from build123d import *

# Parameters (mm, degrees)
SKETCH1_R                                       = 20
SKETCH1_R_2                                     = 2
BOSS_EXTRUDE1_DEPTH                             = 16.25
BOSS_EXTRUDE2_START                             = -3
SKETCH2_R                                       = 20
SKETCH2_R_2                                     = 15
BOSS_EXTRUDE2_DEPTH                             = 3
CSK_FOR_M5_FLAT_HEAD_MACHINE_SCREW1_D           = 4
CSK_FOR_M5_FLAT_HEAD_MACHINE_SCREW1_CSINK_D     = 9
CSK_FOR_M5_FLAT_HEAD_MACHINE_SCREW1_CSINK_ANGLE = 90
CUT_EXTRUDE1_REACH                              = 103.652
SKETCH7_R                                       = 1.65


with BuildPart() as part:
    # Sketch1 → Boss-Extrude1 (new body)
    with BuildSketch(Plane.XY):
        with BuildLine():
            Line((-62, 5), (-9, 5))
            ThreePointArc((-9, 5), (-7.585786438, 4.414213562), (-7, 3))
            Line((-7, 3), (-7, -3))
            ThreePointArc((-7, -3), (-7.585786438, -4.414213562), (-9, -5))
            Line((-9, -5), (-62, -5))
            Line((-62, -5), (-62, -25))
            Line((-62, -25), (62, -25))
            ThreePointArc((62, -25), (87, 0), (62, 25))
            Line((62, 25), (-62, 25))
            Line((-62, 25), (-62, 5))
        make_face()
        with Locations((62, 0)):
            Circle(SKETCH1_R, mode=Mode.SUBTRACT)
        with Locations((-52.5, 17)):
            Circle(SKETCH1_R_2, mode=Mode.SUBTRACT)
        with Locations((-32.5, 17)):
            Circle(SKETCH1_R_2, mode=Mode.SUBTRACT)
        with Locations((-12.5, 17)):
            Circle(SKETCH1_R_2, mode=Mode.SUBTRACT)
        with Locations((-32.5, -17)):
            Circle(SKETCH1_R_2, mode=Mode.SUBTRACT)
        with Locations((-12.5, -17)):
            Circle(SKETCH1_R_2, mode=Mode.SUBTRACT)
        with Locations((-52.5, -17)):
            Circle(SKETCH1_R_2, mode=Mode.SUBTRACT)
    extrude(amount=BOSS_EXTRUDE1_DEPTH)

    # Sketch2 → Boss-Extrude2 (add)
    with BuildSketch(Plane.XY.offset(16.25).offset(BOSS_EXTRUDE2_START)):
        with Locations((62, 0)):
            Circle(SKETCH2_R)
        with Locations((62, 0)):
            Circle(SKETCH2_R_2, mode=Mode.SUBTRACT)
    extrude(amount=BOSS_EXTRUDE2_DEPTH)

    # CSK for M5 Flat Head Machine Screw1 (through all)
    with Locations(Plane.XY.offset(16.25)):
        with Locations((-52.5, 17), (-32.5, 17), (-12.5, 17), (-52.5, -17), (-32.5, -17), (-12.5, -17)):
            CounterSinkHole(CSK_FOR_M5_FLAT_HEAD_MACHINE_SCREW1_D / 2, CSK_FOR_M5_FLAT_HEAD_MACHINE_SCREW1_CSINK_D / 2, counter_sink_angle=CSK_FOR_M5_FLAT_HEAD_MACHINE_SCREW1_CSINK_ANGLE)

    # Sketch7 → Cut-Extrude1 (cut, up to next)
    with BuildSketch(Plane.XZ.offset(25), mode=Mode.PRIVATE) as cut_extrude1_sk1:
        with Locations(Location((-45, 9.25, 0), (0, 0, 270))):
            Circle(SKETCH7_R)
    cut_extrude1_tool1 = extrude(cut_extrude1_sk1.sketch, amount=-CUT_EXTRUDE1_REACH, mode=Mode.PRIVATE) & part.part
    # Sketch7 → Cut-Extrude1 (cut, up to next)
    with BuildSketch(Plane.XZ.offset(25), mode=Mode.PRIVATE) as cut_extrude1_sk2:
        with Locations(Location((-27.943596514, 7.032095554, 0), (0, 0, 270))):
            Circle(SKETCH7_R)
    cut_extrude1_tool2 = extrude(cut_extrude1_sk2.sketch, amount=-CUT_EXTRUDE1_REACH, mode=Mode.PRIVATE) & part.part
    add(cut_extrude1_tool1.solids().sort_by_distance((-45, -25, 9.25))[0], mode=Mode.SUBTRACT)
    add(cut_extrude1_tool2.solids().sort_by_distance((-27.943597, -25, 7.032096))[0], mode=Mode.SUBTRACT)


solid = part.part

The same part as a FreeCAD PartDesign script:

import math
import FreeCAD as App
import Part
import Sketcher
Q = App.Units.Quantity

doc = App.newDocument("Part")
body = doc.addObject("PartDesign::Body", "Body")

# Sketch on XY plane
sketch1 = doc.addObject("Sketcher::SketchObject", "Sketch")
body.addObject(sketch1)
sketch1.AttachmentSupport = (doc.XY_Plane, [""])
sketch1.MapMode = "FlatFace"
sketch1.addGeometry(Part.LineSegment(App.Vector(-62, 5, 0), App.Vector(-9, 5, 0)), False)
sketch1.addGeometry(Part.ArcOfCircle(Part.Circle(App.Vector(-9, 3, 0), App.Vector(0, 0, 1), 2), math.radians(0), math.radians(90)), False)
sketch1.addGeometry(Part.LineSegment(App.Vector(-7, 3, 0), App.Vector(-7, -3, 0)), False)
sketch1.addGeometry(Part.ArcOfCircle(Part.Circle(App.Vector(-9, -3, 0), App.Vector(0, 0, 1), 2), math.radians(-90), math.radians(0)), False)
sketch1.addGeometry(Part.LineSegment(App.Vector(-9, -5, 0), App.Vector(-62, -5, 0)), False)
sketch1.addGeometry(Part.LineSegment(App.Vector(-62, -5, 0), App.Vector(-62, -25, 0)), False)
sketch1.addGeometry(Part.LineSegment(App.Vector(-62, -25, 0), App.Vector(62, -25, 0)), False)
sketch1.addGeometry(Part.ArcOfCircle(Part.Circle(App.Vector(62, 0, 0), App.Vector(0, 0, 1), 25), math.radians(-90), math.radians(90)), False)
sketch1.addGeometry(Part.LineSegment(App.Vector(62, 25, 0), App.Vector(-62, 25, 0)), False)
sketch1.addGeometry(Part.LineSegment(App.Vector(-62, 25, 0), App.Vector(-62, 5, 0)), False)
sketch1.addGeometry(Part.Circle(App.Vector(-52.5, -17, 0), App.Vector(0, 0, 1), 2), False)
sketch1.addGeometry(Part.Circle(App.Vector(-32.5, -17, 0), App.Vector(0, 0, 1), 2), False)
sketch1.addGeometry(Part.Circle(App.Vector(-12.5, -17, 0), App.Vector(0, 0, 1), 2), False)
sketch1.addGeometry(Part.Circle(App.Vector(-52.5, 17, 0), App.Vector(0, 0, 1), 2), False)
sketch1.addGeometry(Part.Circle(App.Vector(-32.5, 17, 0), App.Vector(0, 0, 1), 2), False)
sketch1.addGeometry(Part.Circle(App.Vector(-12.5, 17, 0), App.Vector(0, 0, 1), 2), False)
sketch1.addGeometry(Part.Circle(App.Vector(62, 0, 0), App.Vector(0, 0, 1), 20), False)
sketch1.addConstraint(Sketcher.Constraint("Tangent", 0, 2, 1, 2))
sketch1.addConstraint(Sketcher.Constraint("Tangent", 1, 1, 2, 1))
sketch1.addConstraint(Sketcher.Constraint("Tangent", 2, 2, 3, 2))
sketch1.addConstraint(Sketcher.Constraint("Tangent", 3, 1, 4, 1))
sketch1.addConstraint(Sketcher.Constraint("Coincident", 4, 2, 5, 1))
sketch1.addConstraint(Sketcher.Constraint("Coincident", 5, 2, 6, 1))
sketch1.addConstraint(Sketcher.Constraint("Tangent", 6, 2, 7, 1))
sketch1.addConstraint(Sketcher.Constraint("Tangent", 7, 2, 8, 1))
sketch1.addConstraint(Sketcher.Constraint("Coincident", 8, 2, 9, 1))
sketch1.addConstraint(Sketcher.Constraint("Coincident", 9, 2, 0, 1))
sketch1.addConstraint(Sketcher.Constraint("Horizontal", 0))
sketch1.addConstraint(Sketcher.Constraint("Vertical", 2))
sketch1.addConstraint(Sketcher.Constraint("Horizontal", 4))
sketch1.addConstraint(Sketcher.Constraint("Vertical", 5))
sketch1.addConstraint(Sketcher.Constraint("Horizontal", 6))
sketch1.addConstraint(Sketcher.Constraint("Horizontal", 8))
sketch1.addConstraint(Sketcher.Constraint("Vertical", 9))
sketch1.addConstraint(Sketcher.Constraint("Coincident", 16, 3, 7, 3))
sketch1.addConstraint(Sketcher.Constraint("Equal", 1, 3))
sketch1.addConstraint(Sketcher.Constraint("Equal", 3, 10))
sketch1.addConstraint(Sketcher.Constraint("Equal", 10, 11))
sketch1.addConstraint(Sketcher.Constraint("Equal", 11, 12))
sketch1.addConstraint(Sketcher.Constraint("Equal", 12, 13))
sketch1.addConstraint(Sketcher.Constraint("Equal", 13, 14))
sketch1.addConstraint(Sketcher.Constraint("Equal", 14, 15))
sketch1.addConstraint(Sketcher.Constraint("Symmetric", 5, 2, 7, 2, -1, 1))
sketch1.addConstraint(Sketcher.Constraint("Symmetric", 10, 3, 13, 3, -1))
sketch1.addConstraint(Sketcher.Constraint("Symmetric", 11, 3, 14, 3, -1))
sketch1.addConstraint(Sketcher.Constraint("Symmetric", 12, 3, 15, 3, -1))
sketch1.addConstraint(Sketcher.Constraint("Symmetric", 4, 2, 9, 2, -1))
sketch1.addConstraint(Sketcher.Constraint("Horizontal", 10, 3, 11, 3))
sketch1.addConstraint(Sketcher.Constraint("Horizontal", 11, 3, 12, 3))
sketch1.addConstraint(Sketcher.Constraint("Diameter", 10, Q("4 mm")))
sketch1.addConstraint(Sketcher.Constraint("Diameter", 16, Q("40 mm")))
sketch1.addConstraint(Sketcher.Constraint("Radius", 7, Q("25 mm")))
sketch1.addConstraint(Sketcher.Constraint("DistanceX", 0, 1, 0, 2, Q("53 mm")))
sketch1.addConstraint(Sketcher.Constraint("DistanceX", 6, 1, 6, 2, Q("124 mm")))
sketch1.addConstraint(Sketcher.Constraint("DistanceY", 2, 2, 2, 1, Q("6 mm")))
sketch1.addConstraint(Sketcher.Constraint("DistanceY", 10, 3, -1, 1, Q("17 mm")))
sketch1.addConstraint(Sketcher.Constraint("DistanceX", 10, 3, 11, 3, Q("20 mm")))
sketch1.addConstraint(Sketcher.Constraint("DistanceX", 11, 3, 12, 3, Q("20 mm")))
sketch1.addConstraint(Sketcher.Constraint("DistanceX", 10, 3, -1, 1, Q("52.5 mm")))
pad1 = doc.addObject("PartDesign::Pad", "Pad")
body.addObject(pad1)
pad1.Profile = sketch1
pad1.Length = 16.25

# Sketch on XY plane
sketch2 = doc.addObject("Sketcher::SketchObject", "Sketch001")
body.addObject(sketch2)
sketch2.AttachmentSupport = (doc.XY_Plane, [""])
sketch2.MapMode = "FlatFace"
sketch2.AttachmentOffset = App.Placement(App.Vector(0, 0, 13.25), App.Rotation())
sketch2.addGeometry(Part.Circle(App.Vector(62, 0, 0), App.Vector(0, 0, 1), 20), False)
sketch2.addGeometry(Part.Circle(App.Vector(62, 0, 0), App.Vector(0, 0, 1), 15), False)
sketch2.addConstraint(Sketcher.Constraint("Coincident", 1, 3, 0, 3))
sketch2.addConstraint(Sketcher.Constraint("PointOnObject", 0, 3, -1))
sketch2.addConstraint(Sketcher.Constraint("Diameter", 0, Q("40 mm")))
sketch2.addConstraint(Sketcher.Constraint("Diameter", 1, Q("30 mm")))
sketch2.addConstraint(Sketcher.Constraint("DistanceX", -1, 1, 0, 3, Q("62 mm")))
pad2 = doc.addObject("PartDesign::Pad", "Pad001")
body.addObject(pad2)
pad2.Profile = sketch2
pad2.Length = 3

# Sketch on XY plane
sketch3 = doc.addObject("Sketcher::SketchObject", "Sketch002")
body.addObject(sketch3)
sketch3.AttachmentSupport = (doc.XY_Plane, [""])
sketch3.MapMode = "FlatFace"
sketch3.AttachmentOffset = App.Placement(App.Vector(0, 0, 16.25), App.Rotation())
sketch3.addGeometry(Part.Circle(App.Vector(-52.5, 17, 0), App.Vector(0, 0, 1), 2), False)
sketch3.addGeometry(Part.Circle(App.Vector(-32.5, 17, 0), App.Vector(0, 0, 1), 2), False)
sketch3.addGeometry(Part.Circle(App.Vector(-12.5, 17, 0), App.Vector(0, 0, 1), 2), False)
sketch3.addGeometry(Part.Circle(App.Vector(-52.5, -17, 0), App.Vector(0, 0, 1), 2), False)
sketch3.addGeometry(Part.Circle(App.Vector(-32.5, -17, 0), App.Vector(0, 0, 1), 2), False)
sketch3.addGeometry(Part.Circle(App.Vector(-12.5, -17, 0), App.Vector(0, 0, 1), 2), False)
sketch3.addConstraint(Sketcher.Constraint("Equal", 0, 1))
sketch3.addConstraint(Sketcher.Constraint("Equal", 1, 2))
sketch3.addConstraint(Sketcher.Constraint("Equal", 2, 3))
sketch3.addConstraint(Sketcher.Constraint("Equal", 3, 4))
sketch3.addConstraint(Sketcher.Constraint("Equal", 4, 5))
sketch3.addConstraint(Sketcher.Constraint("Symmetric", 0, 3, 3, 3, -1))
sketch3.addConstraint(Sketcher.Constraint("Symmetric", 1, 3, 4, 3, -1))
sketch3.addConstraint(Sketcher.Constraint("Symmetric", 2, 3, 5, 3, -1))
sketch3.addConstraint(Sketcher.Constraint("Horizontal", 0, 3, 1, 3))
sketch3.addConstraint(Sketcher.Constraint("Horizontal", 1, 3, 2, 3))
sketch3.addConstraint(Sketcher.Constraint("Diameter", 0, Q("4 mm")))
sketch3.addConstraint(Sketcher.Constraint("DistanceY", -1, 1, 0, 3, Q("17 mm")))
sketch3.addConstraint(Sketcher.Constraint("DistanceX", 0, 3, 1, 3, Q("20 mm")))
sketch3.addConstraint(Sketcher.Constraint("DistanceX", 1, 3, 2, 3, Q("20 mm")))
sketch3.addConstraint(Sketcher.Constraint("DistanceX", 0, 3, -1, 1, Q("52.5 mm")))
doc.recompute()
hole = doc.addObject("PartDesign::Hole", "Hole")
body.addObject(hole)
hole.Profile = sketch3
hole.ThreadType = "None"
hole.Diameter = 4
hole.DepthType = "ThroughAll"
hole.HoleCutType = "Countersink"
hole.HoleCutDiameter = 9
hole.HoleCutCountersinkAngle = 90

# Sketch on XZ plane
sketch4 = doc.addObject("Sketcher::SketchObject", "Sketch003")
body.addObject(sketch4)
sketch4.AttachmentSupport = (doc.XZ_Plane, [""])
sketch4.MapMode = "FlatFace"
sketch4.AttachmentOffset = App.Placement(App.Vector(0, 0, 25), App.Rotation())
sketch4.addGeometry(Part.Circle(App.Vector(-45, 9.2, 0), App.Vector(0, 0, 1), 1.6), False)
sketch4.addConstraint(Sketcher.Constraint("Diameter", 0, Q("3.3 mm")))
sketch4.addConstraint(Sketcher.Constraint("DistanceX", 0, 3, -1, 1, Q("45 mm")))
sketch4.addConstraint(Sketcher.Constraint("DistanceY", -1, 1, 0, 3, Q("9.25 mm")))
pocket1 = doc.addObject("PartDesign::Pocket", "Pocket")
body.addObject(pocket1)
pocket1.Profile = sketch4
pocket1.Type = "UpToFirst"

# Sketch on XZ plane
sketch5 = doc.addObject("Sketcher::SketchObject", "Sketch004")
body.addObject(sketch5)
sketch5.AttachmentSupport = (doc.XZ_Plane, [""])
sketch5.MapMode = "FlatFace"
sketch5.AttachmentOffset = App.Placement(App.Vector(0, 0, 25), App.Rotation())
sketch5.addGeometry(Part.Circle(App.Vector(-27.9, 7, 0), App.Vector(0, 0, 1), 1.6), False)
sketch5.addConstraint(Sketcher.Constraint("Diameter", 0, Q("3.3 mm")))
sketch5.addConstraint(Sketcher.Constraint("DistanceX", 0, 3, -1, 1, Q("27.943597 mm")))
sketch5.addConstraint(Sketcher.Constraint("DistanceY", -1, 1, 0, 3, Q("7.032096 mm")))
pocket2 = doc.addObject("PartDesign::Pocket", "Pocket001")
body.addObject(pocket2)
pocket2.Profile = sketch5
pocket2.Type = "UpToFirst"

doc.recompute()
